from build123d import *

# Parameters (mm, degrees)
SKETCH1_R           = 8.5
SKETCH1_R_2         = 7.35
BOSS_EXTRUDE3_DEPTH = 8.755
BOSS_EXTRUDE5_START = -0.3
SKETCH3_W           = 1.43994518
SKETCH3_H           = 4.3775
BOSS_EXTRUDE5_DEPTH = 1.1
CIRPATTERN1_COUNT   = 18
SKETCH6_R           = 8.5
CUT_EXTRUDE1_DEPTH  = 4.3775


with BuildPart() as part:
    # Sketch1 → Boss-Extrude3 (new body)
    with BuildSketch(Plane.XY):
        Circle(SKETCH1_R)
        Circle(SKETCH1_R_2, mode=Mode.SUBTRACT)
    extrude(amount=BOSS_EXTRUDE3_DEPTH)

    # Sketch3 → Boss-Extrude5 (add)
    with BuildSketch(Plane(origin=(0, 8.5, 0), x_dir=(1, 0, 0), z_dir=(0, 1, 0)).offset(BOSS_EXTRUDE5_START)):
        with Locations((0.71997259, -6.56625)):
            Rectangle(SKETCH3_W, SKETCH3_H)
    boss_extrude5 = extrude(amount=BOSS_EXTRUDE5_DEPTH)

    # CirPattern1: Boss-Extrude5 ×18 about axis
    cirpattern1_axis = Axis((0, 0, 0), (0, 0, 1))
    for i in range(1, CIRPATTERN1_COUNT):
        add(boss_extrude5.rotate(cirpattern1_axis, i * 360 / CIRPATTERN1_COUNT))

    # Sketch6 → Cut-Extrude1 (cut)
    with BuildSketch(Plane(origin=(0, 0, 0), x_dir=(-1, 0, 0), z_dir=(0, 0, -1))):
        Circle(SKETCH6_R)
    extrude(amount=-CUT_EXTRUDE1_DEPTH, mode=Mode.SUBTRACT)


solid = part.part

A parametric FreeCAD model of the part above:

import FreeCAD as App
import Part
import Sketcher
from FreeCAD import Vector
Q = App.Units.Quantity


def add_polygon(sketch, points):
    """Adds a closed chain of lines whose ends are joined by coincident constraints."""
    first, n = sketch.GeometryCount, len(points)
    for a, b in zip(points, points[1:] + points[:1]):
        sketch.addGeometry(Part.LineSegment(App.Vector(*a, 0), App.Vector(*b, 0)), False)
    for i in range(n):
        sketch.addConstraint(Sketcher.Constraint("Coincident", first + i, 2, first + (i + 1) % n, 1))

doc = App.newDocument("Part")
body = doc.addObject("PartDesign::Body", "Body")

sketch1 = doc.addObject("Sketcher::SketchObject", "Sketch")
body.addObject(sketch1)
sketch1.AttachmentSupport = (doc.XY_Plane, [""])
sketch1.MapMode = "FlatFace"
sketch1.addGeometry([
    Part.Circle(Vector(0, 0, 0), Vector(0, 0, 1), 8),
    Part.Circle(Vector(0, 0, 0), Vector(0, 0, 1), 7),
], False)
sketch1.addConstraint([
    Sketcher.Constraint("Coincident", 0, 3, -1, 1),
    Sketcher.Constraint("Coincident", 1, 3, -1, 1),
    Sketcher.Constraint("Diameter", 0, Q("17 mm")),
    Sketcher.Constraint("Diameter", 1, Q("14.7 mm")),
])
pad1 = doc.addObject("PartDesign::Pad", "Pad")
body.addObject(pad1)
pad1.Profile = sketch1
pad1.Length = 8.755

sketch2 = doc.addObject("Sketcher::SketchObject", "Sketch001")
body.addObject(sketch2)
sketch2.AttachmentSupport = (doc.XZ_Plane, [""])
sketch2.MapMode = "FlatFace"
sketch2.AttachmentOffset = App.Placement(Vector(0, 0, -8.2), App.Rotation())
add_polygon(sketch2, [(0, 4.4), (0, 8.8), (1.4, 8.8), (1.4, 4.4)])
sketch2.addConstraint([
    Sketcher.Constraint("Vertical", 0),
    Sketcher.Constraint("Horizontal", 1),
    Sketcher.Constraint("Vertical", 2),
    Sketcher.Constraint("Horizontal", 3),
    Sketcher.Constraint("PointOnObject", 0, 2, -2),
    Sketcher.Constraint("DistanceY", 0, 1, 0, 2, Q("4.3775 mm")),
    Sketcher.Constraint("DistanceY", -1, 1, 0, 2, Q("8.755 mm")),
    Sketcher.Constraint("DistanceX", 1, 1, 1, 2, Q("1.439945 mm")),
])
pad2 = doc.addObject("PartDesign::Pad", "Pad001")
body.addObject(pad2)
pad2.Profile = sketch2
pad2.Length = 1.1
pad2.Reversed = True
doc.recompute()

polarpattern = doc.addObject("PartDesign::PolarPattern", "PolarPattern")
body.addObject(polarpattern)
polarpattern.Originals = [pad2]
polarpattern.Axis = (doc.Z_Axis, [""])
polarpattern.Angle = 360
polarpattern.Occurrences = 18
body.Tip = polarpattern

sketch3 = doc.addObject("Sketcher::SketchObject", "Sketch002")
body.addObject(sketch3)
sketch3.AttachmentSupport = (doc.XY_Plane, [""])
sketch3.MapMode = "FlatFace"
sketch3.addGeometry(Part.Circle(Vector(0, 0, 0), Vector(0, 0, 1), 8), False)
sketch3.addConstraint([
    Sketcher.Constraint("Coincident", 0, 3, -1, 1),
    Sketcher.Constraint("Diameter", 0, Q("17 mm")),
])
pocket1 = doc.addObject("PartDesign::Pocket", "Pocket")
body.addObject(pocket1)
pocket1.Profile = sketch3
pocket1.Length = 4.3775
pocket1.Reversed = True

doc.recompute()
